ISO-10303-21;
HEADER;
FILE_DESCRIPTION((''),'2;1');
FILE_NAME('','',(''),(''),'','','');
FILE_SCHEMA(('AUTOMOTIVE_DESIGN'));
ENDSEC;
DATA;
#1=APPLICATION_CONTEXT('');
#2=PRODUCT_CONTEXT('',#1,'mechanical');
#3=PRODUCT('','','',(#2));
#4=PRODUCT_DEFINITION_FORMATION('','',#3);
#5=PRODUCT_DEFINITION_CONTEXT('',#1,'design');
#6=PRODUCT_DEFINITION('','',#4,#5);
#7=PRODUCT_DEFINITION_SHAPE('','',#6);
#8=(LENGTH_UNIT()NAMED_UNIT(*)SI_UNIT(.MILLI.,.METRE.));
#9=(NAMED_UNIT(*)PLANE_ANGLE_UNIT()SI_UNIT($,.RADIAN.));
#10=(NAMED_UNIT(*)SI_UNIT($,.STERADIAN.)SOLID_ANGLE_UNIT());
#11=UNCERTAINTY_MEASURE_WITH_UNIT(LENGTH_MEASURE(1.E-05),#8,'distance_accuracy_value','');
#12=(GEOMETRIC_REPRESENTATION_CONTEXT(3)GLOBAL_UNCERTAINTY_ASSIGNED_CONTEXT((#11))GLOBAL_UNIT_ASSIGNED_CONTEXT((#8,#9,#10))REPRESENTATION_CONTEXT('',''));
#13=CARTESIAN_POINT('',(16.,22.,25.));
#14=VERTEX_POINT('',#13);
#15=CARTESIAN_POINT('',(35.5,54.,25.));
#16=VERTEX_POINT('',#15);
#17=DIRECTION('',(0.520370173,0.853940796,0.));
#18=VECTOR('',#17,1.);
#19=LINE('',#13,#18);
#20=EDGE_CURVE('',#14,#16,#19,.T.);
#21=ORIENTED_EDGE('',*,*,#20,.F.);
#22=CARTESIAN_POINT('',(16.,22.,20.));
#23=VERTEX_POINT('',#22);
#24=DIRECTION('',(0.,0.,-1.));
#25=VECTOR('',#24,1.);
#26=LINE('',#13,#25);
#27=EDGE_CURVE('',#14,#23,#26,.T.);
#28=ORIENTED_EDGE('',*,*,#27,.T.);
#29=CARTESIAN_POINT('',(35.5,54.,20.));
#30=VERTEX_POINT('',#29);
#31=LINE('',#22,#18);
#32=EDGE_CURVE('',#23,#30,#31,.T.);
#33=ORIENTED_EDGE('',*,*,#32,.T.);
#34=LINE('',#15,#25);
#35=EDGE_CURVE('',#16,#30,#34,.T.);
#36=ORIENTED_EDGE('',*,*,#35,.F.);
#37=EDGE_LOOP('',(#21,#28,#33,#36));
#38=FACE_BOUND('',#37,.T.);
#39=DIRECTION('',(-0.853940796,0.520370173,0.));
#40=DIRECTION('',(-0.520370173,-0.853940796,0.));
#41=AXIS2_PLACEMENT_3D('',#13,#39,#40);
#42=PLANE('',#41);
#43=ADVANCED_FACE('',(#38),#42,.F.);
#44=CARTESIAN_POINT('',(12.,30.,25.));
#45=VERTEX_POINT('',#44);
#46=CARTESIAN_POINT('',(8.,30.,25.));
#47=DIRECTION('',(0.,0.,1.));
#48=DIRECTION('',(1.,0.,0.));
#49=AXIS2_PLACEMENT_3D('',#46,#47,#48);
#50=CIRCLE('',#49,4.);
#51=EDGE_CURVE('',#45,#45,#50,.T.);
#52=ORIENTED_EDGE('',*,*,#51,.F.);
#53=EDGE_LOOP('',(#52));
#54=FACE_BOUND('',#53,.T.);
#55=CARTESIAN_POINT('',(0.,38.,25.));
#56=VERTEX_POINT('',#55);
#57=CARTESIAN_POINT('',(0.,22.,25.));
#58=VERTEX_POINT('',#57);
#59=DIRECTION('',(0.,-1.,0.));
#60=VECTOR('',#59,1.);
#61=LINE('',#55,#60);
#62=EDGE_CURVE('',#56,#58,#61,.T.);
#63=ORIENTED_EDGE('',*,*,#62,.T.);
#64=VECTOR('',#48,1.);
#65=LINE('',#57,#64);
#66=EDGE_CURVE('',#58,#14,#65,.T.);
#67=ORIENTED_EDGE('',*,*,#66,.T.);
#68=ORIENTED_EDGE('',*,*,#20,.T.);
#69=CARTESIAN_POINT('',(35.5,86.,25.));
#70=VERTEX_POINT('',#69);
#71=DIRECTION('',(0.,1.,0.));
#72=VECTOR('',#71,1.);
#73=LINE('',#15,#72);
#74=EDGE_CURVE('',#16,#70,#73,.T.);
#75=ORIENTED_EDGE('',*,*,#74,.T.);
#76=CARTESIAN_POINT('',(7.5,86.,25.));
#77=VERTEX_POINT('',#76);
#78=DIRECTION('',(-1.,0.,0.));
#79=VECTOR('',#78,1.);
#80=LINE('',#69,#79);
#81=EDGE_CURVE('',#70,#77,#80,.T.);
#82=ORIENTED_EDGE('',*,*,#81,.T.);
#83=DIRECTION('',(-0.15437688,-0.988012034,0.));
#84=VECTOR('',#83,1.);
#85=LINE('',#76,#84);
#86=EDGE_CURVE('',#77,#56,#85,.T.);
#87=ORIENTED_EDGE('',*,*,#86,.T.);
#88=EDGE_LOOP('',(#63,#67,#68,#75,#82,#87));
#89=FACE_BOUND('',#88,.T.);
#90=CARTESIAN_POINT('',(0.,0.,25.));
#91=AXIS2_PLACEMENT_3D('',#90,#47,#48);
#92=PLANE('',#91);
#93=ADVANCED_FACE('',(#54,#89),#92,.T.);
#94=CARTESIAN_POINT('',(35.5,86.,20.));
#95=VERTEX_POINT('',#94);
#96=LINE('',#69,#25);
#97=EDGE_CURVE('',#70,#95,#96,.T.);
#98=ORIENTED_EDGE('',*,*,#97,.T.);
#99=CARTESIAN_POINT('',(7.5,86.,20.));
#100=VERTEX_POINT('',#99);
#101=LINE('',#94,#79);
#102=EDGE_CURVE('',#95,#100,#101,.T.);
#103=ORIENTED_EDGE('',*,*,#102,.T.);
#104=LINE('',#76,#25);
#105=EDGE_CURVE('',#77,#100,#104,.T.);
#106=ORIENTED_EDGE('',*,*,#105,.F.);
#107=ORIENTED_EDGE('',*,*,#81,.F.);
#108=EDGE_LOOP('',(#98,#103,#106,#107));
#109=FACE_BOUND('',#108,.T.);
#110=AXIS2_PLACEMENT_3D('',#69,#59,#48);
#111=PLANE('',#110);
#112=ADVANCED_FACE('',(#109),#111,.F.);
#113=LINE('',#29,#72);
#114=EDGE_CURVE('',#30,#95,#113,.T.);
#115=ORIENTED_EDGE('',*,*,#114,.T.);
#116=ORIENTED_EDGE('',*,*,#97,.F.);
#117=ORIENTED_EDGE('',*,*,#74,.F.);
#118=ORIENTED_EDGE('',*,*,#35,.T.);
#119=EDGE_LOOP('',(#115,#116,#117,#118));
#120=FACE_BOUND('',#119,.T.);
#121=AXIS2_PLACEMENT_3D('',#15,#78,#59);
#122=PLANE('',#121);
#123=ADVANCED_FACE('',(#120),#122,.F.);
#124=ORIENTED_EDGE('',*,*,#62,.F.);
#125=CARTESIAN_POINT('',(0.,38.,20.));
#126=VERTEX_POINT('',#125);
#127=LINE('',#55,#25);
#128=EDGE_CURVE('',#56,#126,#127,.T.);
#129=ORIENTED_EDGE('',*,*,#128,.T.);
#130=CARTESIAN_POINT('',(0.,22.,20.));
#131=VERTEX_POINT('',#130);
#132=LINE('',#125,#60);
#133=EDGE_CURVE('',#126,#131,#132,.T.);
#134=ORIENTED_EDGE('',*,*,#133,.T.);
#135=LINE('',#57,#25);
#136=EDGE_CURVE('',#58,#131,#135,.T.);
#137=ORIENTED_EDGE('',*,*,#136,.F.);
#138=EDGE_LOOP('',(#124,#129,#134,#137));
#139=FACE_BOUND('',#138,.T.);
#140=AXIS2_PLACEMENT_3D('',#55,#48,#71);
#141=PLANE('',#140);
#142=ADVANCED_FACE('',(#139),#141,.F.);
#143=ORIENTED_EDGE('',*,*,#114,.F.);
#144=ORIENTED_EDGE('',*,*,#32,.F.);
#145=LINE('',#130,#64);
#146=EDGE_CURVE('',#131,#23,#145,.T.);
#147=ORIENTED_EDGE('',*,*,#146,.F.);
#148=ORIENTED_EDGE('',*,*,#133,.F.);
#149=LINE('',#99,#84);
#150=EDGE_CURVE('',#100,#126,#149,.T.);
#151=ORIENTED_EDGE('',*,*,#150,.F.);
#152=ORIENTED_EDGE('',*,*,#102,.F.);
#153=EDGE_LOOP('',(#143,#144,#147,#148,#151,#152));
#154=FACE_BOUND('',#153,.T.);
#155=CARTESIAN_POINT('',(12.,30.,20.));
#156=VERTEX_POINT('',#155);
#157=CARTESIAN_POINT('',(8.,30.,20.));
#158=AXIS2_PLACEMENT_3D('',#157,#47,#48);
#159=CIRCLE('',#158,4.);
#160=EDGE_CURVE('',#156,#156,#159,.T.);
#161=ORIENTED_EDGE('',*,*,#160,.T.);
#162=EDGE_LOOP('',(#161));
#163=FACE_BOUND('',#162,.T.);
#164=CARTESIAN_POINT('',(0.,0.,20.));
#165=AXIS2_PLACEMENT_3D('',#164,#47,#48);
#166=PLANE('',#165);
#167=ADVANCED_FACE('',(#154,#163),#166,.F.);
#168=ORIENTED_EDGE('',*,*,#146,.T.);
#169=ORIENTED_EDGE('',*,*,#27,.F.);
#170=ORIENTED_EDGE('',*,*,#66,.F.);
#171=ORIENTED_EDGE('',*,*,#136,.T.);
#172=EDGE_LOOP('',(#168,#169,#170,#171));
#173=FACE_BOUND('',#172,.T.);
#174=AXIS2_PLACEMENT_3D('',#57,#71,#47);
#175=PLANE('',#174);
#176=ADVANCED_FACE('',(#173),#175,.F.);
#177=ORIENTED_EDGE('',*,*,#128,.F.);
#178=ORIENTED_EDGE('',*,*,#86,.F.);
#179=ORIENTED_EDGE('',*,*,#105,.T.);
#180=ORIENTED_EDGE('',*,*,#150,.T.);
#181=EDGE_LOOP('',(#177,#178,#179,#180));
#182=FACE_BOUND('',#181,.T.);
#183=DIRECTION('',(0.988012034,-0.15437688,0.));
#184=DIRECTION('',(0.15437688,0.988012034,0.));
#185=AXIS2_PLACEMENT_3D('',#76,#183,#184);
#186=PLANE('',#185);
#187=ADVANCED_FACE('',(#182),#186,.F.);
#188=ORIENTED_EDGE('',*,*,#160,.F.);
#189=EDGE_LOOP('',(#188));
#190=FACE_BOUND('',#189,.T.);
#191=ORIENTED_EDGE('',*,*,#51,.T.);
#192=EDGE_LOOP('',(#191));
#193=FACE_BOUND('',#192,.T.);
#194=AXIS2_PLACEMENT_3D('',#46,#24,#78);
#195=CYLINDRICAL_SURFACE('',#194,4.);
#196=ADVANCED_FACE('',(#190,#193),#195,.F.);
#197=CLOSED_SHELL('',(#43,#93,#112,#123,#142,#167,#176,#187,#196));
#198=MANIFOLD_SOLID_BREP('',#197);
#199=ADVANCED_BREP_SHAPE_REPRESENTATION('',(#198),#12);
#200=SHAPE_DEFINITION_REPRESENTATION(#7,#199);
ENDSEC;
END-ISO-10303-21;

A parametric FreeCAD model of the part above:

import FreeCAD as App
import Part
import Sketcher
from FreeCAD import Vector

doc = App.newDocument("Part")
body = doc.addObject("PartDesign::Body", "Body")

sketch1 = body.newObject("Sketcher::SketchObject", "Sketch")
sketch1.AttachmentSupport = (doc.getObject("XY_Plane"), [""])
sketch1.MapMode = "FlatFace"
sketch1.AttachmentOffset = App.Placement(Vector(0, 0, 20), App.Rotation())
sketch1.addGeometry(Part.LineSegment(Vector(0, 22, 0), Vector(16, 22, 0)), False)
sketch1.addGeometry(Part.LineSegment(Vector(16, 22, 0), Vector(35.5, 54, 0)), False)
sketch1.addGeometry(Part.LineSegment(Vector(35.5, 54, 0), Vector(35.5, 86, 0)), False)
sketch1.addGeometry(Part.LineSegment(Vector(35.5, 86, 0), Vector(7.5, 86, 0)), False)
sketch1.addGeometry(Part.LineSegment(Vector(7.5, 86, 0), Vector(0, 38, 0)), False)
sketch1.addGeometry(Part.LineSegment(Vector(0, 38, 0), Vector(0, 22, 0)), False)
sketch1.addGeometry(Part.Circle(Vector(8, 30, 0), Vector(0, 0, 1), 4), False)
sketch1.addConstraint(Sketcher.Constraint("Coincident", 0, 2, 1, 1))
sketch1.addConstraint(Sketcher.Constraint("Coincident", 1, 2, 2, 1))
sketch1.addConstraint(Sketcher.Constraint("Coincident", 2, 2, 3, 1))
sketch1.addConstraint(Sketcher.Constraint("Coincident", 3, 2, 4, 1))
sketch1.addConstraint(Sketcher.Constraint("Coincident", 4, 2, 5, 1))
sketch1.addConstraint(Sketcher.Constraint("Coincident", 5, 2, 0, 1))
sketch1.addConstraint(Sketcher.Constraint("Horizontal", 0))
sketch1.addConstraint(Sketcher.Constraint("Vertical", 2))
sketch1.addConstraint(Sketcher.Constraint("Horizontal", 3))
sketch1.addConstraint(Sketcher.Constraint("Vertical", 5))
sketch1.addConstraint(Sketcher.Constraint("PointOnObject", 4, 2, -2))
sketch1.addConstraint(Sketcher.Constraint("Equal", 0, 5))
sketch1.addConstraint(Sketcher.Constraint("Diameter", 6, 8.0))
sketch1.addConstraint(Sketcher.Constraint("DistanceX", 0, 1, 0, 2, 16.0))
sketch1.addConstraint(Sketcher.Constraint("DistanceX", 3, 2, 3, 1, 28.0))
sketch1.addConstraint(Sketcher.Constraint("DistanceY", 2, 1, 2, 2, 32.0))
sketch1.addConstraint(Sketcher.Constraint("DistanceX", -1, 1, 6, 3, 8.0))
sketch1.addConstraint(Sketcher.Constraint("DistanceY", -1, 1, 6, 3, 30.0))
sketch1.addConstraint(Sketcher.Constraint("DistanceY", -1, 1, 0, 2, 22.0))
sketch1.addConstraint(Sketcher.Constraint("DistanceY", -1, 1, 1, 2, 54.0))
sketch1.addConstraint(Sketcher.Constraint("DistanceX", -1, 1, 1, 2, 35.5))
pad1 = body.newObject("PartDesign::Pad", "Pad")
pad1.Profile = sketch1
pad1.Length = 5

doc.recompute()
